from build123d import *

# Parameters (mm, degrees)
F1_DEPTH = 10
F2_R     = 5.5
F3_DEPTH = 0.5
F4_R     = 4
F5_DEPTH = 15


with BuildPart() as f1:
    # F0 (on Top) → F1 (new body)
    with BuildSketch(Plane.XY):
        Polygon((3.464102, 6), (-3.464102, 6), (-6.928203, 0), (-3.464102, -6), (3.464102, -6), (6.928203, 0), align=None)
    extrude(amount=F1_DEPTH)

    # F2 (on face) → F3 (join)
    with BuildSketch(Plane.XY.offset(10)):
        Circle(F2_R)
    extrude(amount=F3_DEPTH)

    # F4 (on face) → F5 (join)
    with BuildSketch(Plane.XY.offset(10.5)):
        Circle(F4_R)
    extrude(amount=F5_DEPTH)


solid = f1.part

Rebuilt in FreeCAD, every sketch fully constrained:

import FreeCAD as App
import Part
import Sketcher
Q = App.Units.Quantity

doc = App.newDocument("Part")
body = doc.addObject("PartDesign::Body", "Body")

# Sketch on XY plane
sketch1 = doc.addObject("Sketcher::SketchObject", "Sketch")
body.addObject(sketch1)
sketch1.AttachmentSupport = (doc.XY_Plane, [""])
sketch1.MapMode = "FlatFace"
sketch1.addGeometry([
    Part.LineSegment(App.Vector(3, 6, 0), App.Vector(-3, 6, 0)),  # 0
    Part.LineSegment(App.Vector(-3, 6, 0), App.Vector(-7, 0, 0)),  # 1
    Part.LineSegment(App.Vector(-7, 0, 0), App.Vector(-3, -6, 0)),  # 2
    Part.LineSegment(App.Vector(-3, -6, 0), App.Vector(3, -6, 0)),  # 3
    Part.LineSegment(App.Vector(3, -6, 0), App.Vector(7, 0, 0)),  # 4
    Part.LineSegment(App.Vector(7, 0, 0), App.Vector(3, 6, 0)),  # 5
], False)
sketch1.addConstraint([
    Sketcher.Constraint("Coincident", 0, 2, 1, 1),
    Sketcher.Constraint("Coincident", 1, 2, 2, 1),
    Sketcher.Constraint("Coincident", 2, 2, 3, 1),
    Sketcher.Constraint("Coincident", 3, 2, 4, 1),
    Sketcher.Constraint("Coincident", 4, 2, 5, 1),
    Sketcher.Constraint("Coincident", 5, 2, 0, 1),
    Sketcher.Constraint("Horizontal", 0),
    Sketcher.Constraint("Horizontal", 3),
    Sketcher.Constraint("Symmetric", 0, 2, 3, 2, -1, 1),
    Sketcher.Constraint("Symmetric", 1, 2, 4, 2, -1, 1),
    Sketcher.Constraint("PointOnObject", 1, 2, -1),
    Sketcher.Constraint("Parallel", 2, 5),
    Sketcher.Constraint("Vertical", 0, 2, 2, 2),
    Sketcher.Constraint("Angle", 1, Q("-119.999996 deg")),
    Sketcher.Constraint("DistanceY", -1, 1, 0, 2, 6.0),
    Sketcher.Constraint("DistanceX", 0, 2, -1, 1, 3.464102),
])
pad1 = doc.addObject("PartDesign::Pad", "Pad")
body.addObject(pad1)
pad1.Profile = sketch1
pad1.Length = 10

# Sketch on XY plane
sketch2 = doc.addObject("Sketcher::SketchObject", "Sketch001")
body.addObject(sketch2)
sketch2.AttachmentSupport = (doc.XY_Plane, [""])
sketch2.MapMode = "FlatFace"
sketch2.AttachmentOffset = App.Placement(App.Vector(0, 0, 10), App.Rotation())
sketch2.addGeometry(Part.Circle(App.Vector(0, 0, 0), App.Vector(0, 0, 1), 6), False)
sketch2.addConstraint([
    Sketcher.Constraint("Coincident", 0, 3, -1, 1),
    Sketcher.Constraint("Diameter", 0, 11.0),
])
pad2 = doc.addObject("PartDesign::Pad", "Pad001")
body.addObject(pad2)
pad2.Profile = sketch2
pad2.Length = 0.5

# Sketch on XY plane
sketch3 = doc.addObject("Sketcher::SketchObject", "Sketch002")
body.addObject(sketch3)
sketch3.AttachmentSupport = (doc.XY_Plane, [""])
sketch3.MapMode = "FlatFace"
sketch3.AttachmentOffset = App.Placement(App.Vector(0, 0, 10.5), App.Rotation())
sketch3.addGeometry(Part.Circle(App.Vector(0, 0, 0), App.Vector(0, 0, 1), 4), False)
sketch3.addConstraint([
    Sketcher.Constraint("Coincident", 0, 3, -1, 1),
    Sketcher.Constraint("Diameter", 0, 8.0),
])
pad3 = doc.addObject("PartDesign::Pad", "Pad002")
body.addObject(pad3)
pad3.Profile = sketch3
pad3.Length = 15

doc.recompute()
